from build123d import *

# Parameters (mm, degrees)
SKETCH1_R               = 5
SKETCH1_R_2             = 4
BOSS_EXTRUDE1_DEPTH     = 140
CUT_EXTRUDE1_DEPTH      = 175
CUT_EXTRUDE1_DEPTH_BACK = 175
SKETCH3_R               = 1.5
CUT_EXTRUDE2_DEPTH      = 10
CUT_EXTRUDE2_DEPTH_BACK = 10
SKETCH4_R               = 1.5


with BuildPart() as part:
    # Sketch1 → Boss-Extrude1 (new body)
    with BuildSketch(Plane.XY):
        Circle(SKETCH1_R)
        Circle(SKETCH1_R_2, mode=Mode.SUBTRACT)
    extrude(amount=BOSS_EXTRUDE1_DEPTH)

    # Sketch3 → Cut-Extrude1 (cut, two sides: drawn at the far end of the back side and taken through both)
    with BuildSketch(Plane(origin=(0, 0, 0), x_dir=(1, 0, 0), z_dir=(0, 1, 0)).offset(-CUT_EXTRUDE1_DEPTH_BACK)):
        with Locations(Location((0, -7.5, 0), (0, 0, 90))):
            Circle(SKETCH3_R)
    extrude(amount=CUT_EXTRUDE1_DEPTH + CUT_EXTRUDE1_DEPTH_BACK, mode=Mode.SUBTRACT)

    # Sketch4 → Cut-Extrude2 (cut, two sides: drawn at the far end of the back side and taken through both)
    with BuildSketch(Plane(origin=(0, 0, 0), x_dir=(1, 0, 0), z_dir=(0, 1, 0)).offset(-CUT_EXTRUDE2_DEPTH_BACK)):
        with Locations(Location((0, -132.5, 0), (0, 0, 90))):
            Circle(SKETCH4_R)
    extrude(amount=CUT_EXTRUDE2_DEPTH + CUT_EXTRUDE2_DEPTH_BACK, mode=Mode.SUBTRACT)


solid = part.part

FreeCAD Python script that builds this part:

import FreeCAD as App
import Part
import Sketcher

V = App.Vector
Q = App.Units.Quantity

doc = App.newDocument("Part")
body = doc.addObject("PartDesign::Body", "Body")

# Sketch on XY plane
sketch1 = body.newObject("Sketcher::SketchObject", "Sketch")
sketch1.AttachmentSupport = (doc.getObject("XY_Plane"), [""])
sketch1.MapMode = "FlatFace"
sketch1.addGeometry([
    Part.Circle(V(0, 0, 0), V(0, 0, 1), 5),
    Part.Circle(V(0, 0, 0), V(0, 0, 1), 4),
], False)
sketch1.addConstraint([
    Sketcher.Constraint("Coincident", 0, 3, -1, 1),
    Sketcher.Constraint("Coincident", 1, 3, -1, 1),
    Sketcher.Constraint("Diameter", 0, Q("10 mm")),
    Sketcher.Constraint("Diameter", 1, Q("8 mm")),
])
pad1 = body.newObject("PartDesign::Pad", "Pad")
pad1.Profile = sketch1
pad1.Length = 140

# Sketch on XZ plane
sketch2 = body.newObject("Sketcher::SketchObject", "Sketch001")
sketch2.AttachmentSupport = (doc.getObject("XZ_Plane"), [""])
sketch2.MapMode = "FlatFace"
sketch2.addGeometry(Part.Circle(V(0, 7.5, 0), V(0, 0, 1), 1.5), False)
sketch2.addConstraint([
    Sketcher.Constraint("PointOnObject", 0, 3, -2),
    Sketcher.Constraint("Diameter", 0, Q("3 mm")),
    Sketcher.Constraint("DistanceY", -1, 1, 0, 3, Q("7.5 mm")),
])
pocket1 = body.newObject("PartDesign::Pocket", "Pocket")
pocket1.Profile = sketch2
pocket1.Type = "ThroughAll"
pocket1.Midplane = True

# Sketch on XZ plane
sketch3 = body.newObject("Sketcher::SketchObject", "Sketch002")
sketch3.AttachmentSupport = (doc.getObject("XZ_Plane"), [""])
sketch3.MapMode = "FlatFace"
sketch3.addGeometry(Part.Circle(V(0, 132.5, 0), V(0, 0, 1), 1.5), False)
sketch3.addConstraint([
    Sketcher.Constraint("PointOnObject", 0, 3, -2),
    Sketcher.Constraint("Diameter", 0, Q("3 mm")),
    Sketcher.Constraint("DistanceY", -1, 1, 0, 3, Q("132.5 mm")),
])
pocket2 = body.newObject("PartDesign::Pocket", "Pocket001")
pocket2.Profile = sketch3
pocket2.Type = "ThroughAll"
pocket2.Midplane = True

doc.recompute()
